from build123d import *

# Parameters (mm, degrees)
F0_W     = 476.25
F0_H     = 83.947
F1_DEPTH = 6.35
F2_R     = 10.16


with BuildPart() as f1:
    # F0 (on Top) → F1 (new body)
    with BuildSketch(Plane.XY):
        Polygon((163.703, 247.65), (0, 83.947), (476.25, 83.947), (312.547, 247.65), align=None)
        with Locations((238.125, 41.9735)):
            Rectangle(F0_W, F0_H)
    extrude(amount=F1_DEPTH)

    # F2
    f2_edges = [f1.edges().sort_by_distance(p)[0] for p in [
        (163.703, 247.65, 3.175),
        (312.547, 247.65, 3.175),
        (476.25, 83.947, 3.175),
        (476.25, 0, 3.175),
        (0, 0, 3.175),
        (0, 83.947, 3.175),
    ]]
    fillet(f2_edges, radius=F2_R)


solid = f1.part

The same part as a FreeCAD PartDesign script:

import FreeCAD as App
import Part
import Sketcher
from FreeCAD import Vector
Q = App.Units.Quantity


def edges_at(feature, points):
    """Names of the edges that pass closest to the given points."""
    edges = feature.Shape.Edges
    near = lambda p: min(range(len(edges)), key=lambda i: edges[i].distToShape(Part.Vertex(*p))[0])
    return sorted({f"Edge{near(p) + 1}" for p in points})

doc = App.newDocument("Part")
body = doc.addObject("PartDesign::Body", "Body")

# Sketch on XY plane
sketch1 = body.newObject("Sketcher::SketchObject", "Sketch")
sketch1.AttachmentSupport = (doc.getObject("XY_Plane"), [""])
sketch1.MapMode = "FlatFace"
sketch1.addGeometry(Part.LineSegment(Vector(164, 248, 0), Vector(0, 84, 0)), False)
sketch1.addGeometry(Part.LineSegment(Vector(0, 84, 0), Vector(0, 0, 0)), False)
sketch1.addGeometry(Part.LineSegment(Vector(0, 0, 0), Vector(476, 0, 0)), False)
sketch1.addGeometry(Part.LineSegment(Vector(476, 0, 0), Vector(476, 84, 0)), False)
sketch1.addGeometry(Part.LineSegment(Vector(476, 84, 0), Vector(313, 248, 0)), False)
sketch1.addGeometry(Part.LineSegment(Vector(313, 248, 0), Vector(164, 248, 0)), False)
sketch1.addConstraint(Sketcher.Constraint("Coincident", 0, 2, 1, 1))
sketch1.addConstraint(Sketcher.Constraint("Coincident", 1, 2, 2, 1))
sketch1.addConstraint(Sketcher.Constraint("Coincident", 2, 2, 3, 1))
sketch1.addConstraint(Sketcher.Constraint("Coincident", 3, 2, 4, 1))
sketch1.addConstraint(Sketcher.Constraint("Coincident", 4, 2, 5, 1))
sketch1.addConstraint(Sketcher.Constraint("Coincident", 5, 2, 0, 1))
sketch1.addConstraint(Sketcher.Constraint("Vertical", 1))
sketch1.addConstraint(Sketcher.Constraint("Horizontal", 2))
sketch1.addConstraint(Sketcher.Constraint("Vertical", 3))
sketch1.addConstraint(Sketcher.Constraint("Horizontal", 5))
sketch1.addConstraint(Sketcher.Constraint("Coincident", 1, 2, -1, 1))
sketch1.addConstraint(Sketcher.Constraint("Perpendicular", 0, 4))
sketch1.addConstraint(Sketcher.Constraint("Horizontal", 0, 2, 3, 2))
sketch1.addConstraint(Sketcher.Constraint("Equal", 0, 4))
sketch1.addConstraint(Sketcher.Constraint("DistanceX", 2, 1, 2, 2, Q("18.75 in")))
sketch1.addConstraint(Sketcher.Constraint("DistanceX", 5, 2, 5, 1, Q("5.86 in")))
sketch1.addConstraint(Sketcher.Constraint("DistanceY", 1, 2, 1, 1, Q("3.305 in")))
pad1 = body.newObject("PartDesign::Pad", "Pad")
pad1.Profile = sketch1
pad1.Length = Q("0.25 in")
doc.recompute()

fillet = body.newObject("PartDesign::Fillet", "Fillet")
fillet.Base = (pad1, edges_at(pad1, [
    (163.703, 247.65, 3.175),
    (312.547, 247.65, 3.175),
    (476.25, 83.947, 3.175),
    (476.25, 0, 3.175),
    (0, 0, 3.175),
    (0, 83.947, 3.175),
]))
fillet.Radius = Q("0.4 in")

doc.recompute()
